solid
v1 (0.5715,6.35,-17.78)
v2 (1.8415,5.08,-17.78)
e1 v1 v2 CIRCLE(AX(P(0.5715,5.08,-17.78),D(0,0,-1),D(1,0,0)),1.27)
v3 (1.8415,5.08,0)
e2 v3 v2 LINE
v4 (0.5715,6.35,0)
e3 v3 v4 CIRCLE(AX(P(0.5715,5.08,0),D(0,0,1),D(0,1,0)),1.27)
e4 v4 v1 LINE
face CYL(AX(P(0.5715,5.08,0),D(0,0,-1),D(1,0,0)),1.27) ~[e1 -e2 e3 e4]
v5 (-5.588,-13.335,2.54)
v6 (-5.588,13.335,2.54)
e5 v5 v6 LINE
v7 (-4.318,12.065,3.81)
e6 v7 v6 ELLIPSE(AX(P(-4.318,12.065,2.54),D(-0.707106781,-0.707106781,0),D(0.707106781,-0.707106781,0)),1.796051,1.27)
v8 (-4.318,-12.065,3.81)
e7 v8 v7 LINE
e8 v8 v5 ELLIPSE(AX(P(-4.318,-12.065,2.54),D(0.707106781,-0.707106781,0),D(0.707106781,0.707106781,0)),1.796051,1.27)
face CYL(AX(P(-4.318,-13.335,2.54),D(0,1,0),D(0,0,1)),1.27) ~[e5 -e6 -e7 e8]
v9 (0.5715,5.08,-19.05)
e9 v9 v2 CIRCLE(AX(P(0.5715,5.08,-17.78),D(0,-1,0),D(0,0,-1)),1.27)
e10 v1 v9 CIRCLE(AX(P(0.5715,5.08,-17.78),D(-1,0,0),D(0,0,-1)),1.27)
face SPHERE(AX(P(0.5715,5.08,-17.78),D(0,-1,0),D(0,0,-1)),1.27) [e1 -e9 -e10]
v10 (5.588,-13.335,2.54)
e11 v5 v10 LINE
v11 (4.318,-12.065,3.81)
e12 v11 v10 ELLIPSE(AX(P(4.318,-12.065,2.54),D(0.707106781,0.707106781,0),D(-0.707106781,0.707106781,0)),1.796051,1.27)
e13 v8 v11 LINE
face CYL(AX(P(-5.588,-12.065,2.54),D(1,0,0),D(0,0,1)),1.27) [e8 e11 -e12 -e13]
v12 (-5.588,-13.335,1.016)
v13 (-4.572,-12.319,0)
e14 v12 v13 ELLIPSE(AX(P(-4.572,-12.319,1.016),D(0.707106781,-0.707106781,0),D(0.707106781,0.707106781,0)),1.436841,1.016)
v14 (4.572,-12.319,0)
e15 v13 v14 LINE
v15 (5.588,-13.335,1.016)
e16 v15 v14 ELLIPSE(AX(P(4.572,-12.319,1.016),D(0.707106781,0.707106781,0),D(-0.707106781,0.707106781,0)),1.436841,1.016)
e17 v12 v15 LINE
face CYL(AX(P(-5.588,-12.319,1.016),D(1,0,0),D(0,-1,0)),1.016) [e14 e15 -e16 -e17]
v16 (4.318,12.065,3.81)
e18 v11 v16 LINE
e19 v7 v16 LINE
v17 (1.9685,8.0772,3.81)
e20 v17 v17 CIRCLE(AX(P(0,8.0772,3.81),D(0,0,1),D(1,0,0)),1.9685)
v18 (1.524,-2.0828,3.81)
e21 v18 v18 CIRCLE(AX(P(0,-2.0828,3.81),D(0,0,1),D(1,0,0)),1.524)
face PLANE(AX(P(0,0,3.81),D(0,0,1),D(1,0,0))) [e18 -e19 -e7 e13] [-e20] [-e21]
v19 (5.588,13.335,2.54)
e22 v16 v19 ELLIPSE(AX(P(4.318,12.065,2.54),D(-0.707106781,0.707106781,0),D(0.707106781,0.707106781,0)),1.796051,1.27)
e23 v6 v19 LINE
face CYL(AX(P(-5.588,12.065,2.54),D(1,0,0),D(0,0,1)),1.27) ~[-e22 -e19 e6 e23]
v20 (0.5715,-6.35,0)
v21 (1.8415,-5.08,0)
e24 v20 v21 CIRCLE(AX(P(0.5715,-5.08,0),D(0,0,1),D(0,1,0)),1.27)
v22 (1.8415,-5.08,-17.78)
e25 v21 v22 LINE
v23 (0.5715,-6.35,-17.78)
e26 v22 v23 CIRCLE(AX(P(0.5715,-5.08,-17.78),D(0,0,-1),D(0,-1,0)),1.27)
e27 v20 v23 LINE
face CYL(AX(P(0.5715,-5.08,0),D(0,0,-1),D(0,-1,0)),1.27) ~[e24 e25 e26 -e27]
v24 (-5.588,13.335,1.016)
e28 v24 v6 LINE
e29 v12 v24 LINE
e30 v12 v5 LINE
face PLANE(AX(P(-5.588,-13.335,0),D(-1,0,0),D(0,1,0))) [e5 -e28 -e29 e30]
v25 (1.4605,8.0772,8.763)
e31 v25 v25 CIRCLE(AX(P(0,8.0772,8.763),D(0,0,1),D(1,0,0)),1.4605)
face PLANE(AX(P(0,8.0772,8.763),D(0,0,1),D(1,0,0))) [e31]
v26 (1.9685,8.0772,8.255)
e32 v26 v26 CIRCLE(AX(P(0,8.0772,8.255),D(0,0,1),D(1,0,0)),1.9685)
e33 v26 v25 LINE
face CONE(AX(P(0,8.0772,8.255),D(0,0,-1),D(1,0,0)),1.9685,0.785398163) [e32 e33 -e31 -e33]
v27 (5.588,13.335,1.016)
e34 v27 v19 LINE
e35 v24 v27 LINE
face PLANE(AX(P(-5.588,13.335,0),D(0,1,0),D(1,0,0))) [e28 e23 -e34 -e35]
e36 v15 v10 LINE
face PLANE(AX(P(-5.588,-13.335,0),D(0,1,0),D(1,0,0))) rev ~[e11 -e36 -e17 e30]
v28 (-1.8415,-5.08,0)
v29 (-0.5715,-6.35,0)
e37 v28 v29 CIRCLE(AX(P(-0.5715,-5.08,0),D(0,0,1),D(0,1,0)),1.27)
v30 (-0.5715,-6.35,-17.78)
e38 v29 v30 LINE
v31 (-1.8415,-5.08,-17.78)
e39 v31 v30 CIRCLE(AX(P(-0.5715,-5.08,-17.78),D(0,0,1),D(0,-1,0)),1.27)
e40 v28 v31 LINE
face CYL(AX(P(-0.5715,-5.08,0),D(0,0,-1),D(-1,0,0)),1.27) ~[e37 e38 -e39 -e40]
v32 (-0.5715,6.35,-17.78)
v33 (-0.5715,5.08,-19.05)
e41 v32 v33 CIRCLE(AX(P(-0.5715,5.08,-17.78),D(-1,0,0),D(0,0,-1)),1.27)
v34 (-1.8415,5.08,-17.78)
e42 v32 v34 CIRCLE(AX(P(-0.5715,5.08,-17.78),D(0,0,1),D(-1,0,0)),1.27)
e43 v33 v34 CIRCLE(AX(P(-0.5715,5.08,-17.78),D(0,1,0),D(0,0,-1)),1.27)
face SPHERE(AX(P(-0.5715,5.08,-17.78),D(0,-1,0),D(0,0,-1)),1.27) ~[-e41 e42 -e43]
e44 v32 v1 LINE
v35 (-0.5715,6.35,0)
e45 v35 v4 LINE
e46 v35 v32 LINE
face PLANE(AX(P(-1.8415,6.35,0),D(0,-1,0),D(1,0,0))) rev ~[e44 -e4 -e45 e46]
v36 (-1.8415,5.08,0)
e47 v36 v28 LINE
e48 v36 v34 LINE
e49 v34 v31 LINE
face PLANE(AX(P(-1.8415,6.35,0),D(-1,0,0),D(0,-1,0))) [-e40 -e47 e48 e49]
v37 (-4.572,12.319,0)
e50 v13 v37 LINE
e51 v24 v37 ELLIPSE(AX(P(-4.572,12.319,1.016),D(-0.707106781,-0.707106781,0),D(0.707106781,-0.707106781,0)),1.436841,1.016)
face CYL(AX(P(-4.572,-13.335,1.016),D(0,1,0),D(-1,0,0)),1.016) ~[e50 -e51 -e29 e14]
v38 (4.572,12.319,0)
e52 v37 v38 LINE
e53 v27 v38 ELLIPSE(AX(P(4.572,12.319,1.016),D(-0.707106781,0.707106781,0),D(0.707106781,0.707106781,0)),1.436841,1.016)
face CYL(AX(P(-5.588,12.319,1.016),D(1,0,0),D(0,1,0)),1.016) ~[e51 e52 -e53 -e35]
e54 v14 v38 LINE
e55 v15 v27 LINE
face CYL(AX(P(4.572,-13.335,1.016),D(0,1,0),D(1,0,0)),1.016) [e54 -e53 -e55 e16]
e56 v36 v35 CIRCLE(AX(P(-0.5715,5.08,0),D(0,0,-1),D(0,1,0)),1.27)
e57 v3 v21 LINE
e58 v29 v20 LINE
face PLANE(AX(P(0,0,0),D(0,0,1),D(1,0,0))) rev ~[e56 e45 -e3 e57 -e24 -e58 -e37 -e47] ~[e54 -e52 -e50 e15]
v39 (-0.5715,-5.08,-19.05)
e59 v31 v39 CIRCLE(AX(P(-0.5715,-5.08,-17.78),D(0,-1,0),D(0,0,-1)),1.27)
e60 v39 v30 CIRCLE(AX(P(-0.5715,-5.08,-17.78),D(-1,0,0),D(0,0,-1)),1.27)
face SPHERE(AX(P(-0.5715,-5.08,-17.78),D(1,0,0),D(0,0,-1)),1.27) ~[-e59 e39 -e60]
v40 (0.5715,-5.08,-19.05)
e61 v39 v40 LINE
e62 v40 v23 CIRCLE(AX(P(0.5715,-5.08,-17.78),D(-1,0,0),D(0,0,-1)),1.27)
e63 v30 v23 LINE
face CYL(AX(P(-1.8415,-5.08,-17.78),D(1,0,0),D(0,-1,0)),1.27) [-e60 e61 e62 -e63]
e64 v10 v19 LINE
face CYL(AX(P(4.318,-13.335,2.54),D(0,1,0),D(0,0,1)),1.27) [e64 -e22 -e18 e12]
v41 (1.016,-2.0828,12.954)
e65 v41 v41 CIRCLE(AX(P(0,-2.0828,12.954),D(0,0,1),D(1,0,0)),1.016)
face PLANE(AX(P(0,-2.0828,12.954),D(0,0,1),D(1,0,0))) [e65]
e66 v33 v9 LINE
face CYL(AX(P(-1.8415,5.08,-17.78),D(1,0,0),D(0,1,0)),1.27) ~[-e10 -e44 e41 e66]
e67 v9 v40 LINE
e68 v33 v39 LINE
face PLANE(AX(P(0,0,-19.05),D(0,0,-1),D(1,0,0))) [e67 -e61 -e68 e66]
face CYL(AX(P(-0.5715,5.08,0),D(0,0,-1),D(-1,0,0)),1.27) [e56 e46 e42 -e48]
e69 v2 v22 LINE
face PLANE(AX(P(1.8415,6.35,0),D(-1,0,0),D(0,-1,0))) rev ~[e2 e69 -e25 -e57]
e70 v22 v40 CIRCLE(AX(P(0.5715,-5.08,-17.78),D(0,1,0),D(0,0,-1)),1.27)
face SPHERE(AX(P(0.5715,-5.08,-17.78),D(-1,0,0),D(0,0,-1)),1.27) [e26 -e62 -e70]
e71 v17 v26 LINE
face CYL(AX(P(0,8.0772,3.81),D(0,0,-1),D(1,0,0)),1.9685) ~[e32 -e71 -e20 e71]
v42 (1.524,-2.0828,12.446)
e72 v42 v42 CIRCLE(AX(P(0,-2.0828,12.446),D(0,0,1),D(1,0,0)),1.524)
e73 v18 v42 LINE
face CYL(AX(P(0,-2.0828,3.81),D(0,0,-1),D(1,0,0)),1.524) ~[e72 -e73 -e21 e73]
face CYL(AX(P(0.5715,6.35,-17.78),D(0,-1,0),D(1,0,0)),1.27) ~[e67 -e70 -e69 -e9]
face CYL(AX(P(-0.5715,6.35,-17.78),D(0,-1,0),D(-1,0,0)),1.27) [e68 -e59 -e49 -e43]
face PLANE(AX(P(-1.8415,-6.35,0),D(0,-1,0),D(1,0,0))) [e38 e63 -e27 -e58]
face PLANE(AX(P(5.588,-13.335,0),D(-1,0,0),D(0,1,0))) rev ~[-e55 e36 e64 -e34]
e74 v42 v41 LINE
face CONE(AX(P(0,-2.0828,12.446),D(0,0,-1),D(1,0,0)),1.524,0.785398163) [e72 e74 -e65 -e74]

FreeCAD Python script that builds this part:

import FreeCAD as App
import Part
import Sketcher
from FreeCAD import Vector
Q = App.Units.Quantity


def edges_at(feature, points):
    """Names of the edges that pass closest to the given points."""
    edges = feature.Shape.Edges
    near = lambda p: min(range(len(edges)), key=lambda i: edges[i].distToShape(Part.Vertex(*p))[0])
    return sorted({f"Edge{near(p) + 1}" for p in points})

doc = App.newDocument("Part")
body = doc.addObject("PartDesign::Body", "Body")

sketch1 = doc.addObject("Sketcher::SketchObject", "Sketch")
body.addObject(sketch1)
sketch1.AttachmentSupport = (doc.XY_Plane, [""])
sketch1.MapMode = "FlatFace"
sketch1.addGeometry(Part.LineSegment(Vector(-6, 13, 0), Vector(-6, -13, 0)), False)
sketch1.addGeometry(Part.LineSegment(Vector(-6, -13, 0), Vector(6, -13, 0)), False)
sketch1.addGeometry(Part.LineSegment(Vector(6, -13, 0), Vector(6, 13, 0)), False)
sketch1.addGeometry(Part.LineSegment(Vector(6, 13, 0), Vector(-6, 13, 0)), False)
sketch1.addConstraint(Sketcher.Constraint("Coincident", 0, 2, 1, 1))
sketch1.addConstraint(Sketcher.Constraint("Coincident", 1, 2, 2, 1))
sketch1.addConstraint(Sketcher.Constraint("Coincident", 2, 2, 3, 1))
sketch1.addConstraint(Sketcher.Constraint("Coincident", 3, 2, 0, 1))
sketch1.addConstraint(Sketcher.Constraint("Vertical", 0))
sketch1.addConstraint(Sketcher.Constraint("Horizontal", 1))
sketch1.addConstraint(Sketcher.Constraint("Vertical", 2))
sketch1.addConstraint(Sketcher.Constraint("Horizontal", 3))
sketch1.addConstraint(Sketcher.Constraint("Symmetric", 0, 2, 2, 2, -1, 1))
sketch1.addConstraint(Sketcher.Constraint("DistanceX", 1, 1, 1, 2, Q("0.44 in")))
sketch1.addConstraint(Sketcher.Constraint("DistanceY", 0, 2, 0, 1, Q("1.05 in")))
pad1 = doc.addObject("PartDesign::Pad", "Pad")
body.addObject(pad1)
pad1.Profile = sketch1
pad1.Length = Q("0.15 in")

sketch2 = doc.addObject("Sketcher::SketchObject", "Sketch001")
body.addObject(sketch2)
sketch2.AttachmentSupport = (doc.XY_Plane, [""])
sketch2.MapMode = "FlatFace"
sketch2.AttachmentOffset = App.Placement(Vector(0, 0, 0.15 * 25.4), App.Rotation())
sketch2.addGeometry(Part.Circle(Vector(0, 8.1, 0), Vector(0, 0, 1), 2), False)
sketch2.addConstraint(Sketcher.Constraint("PointOnObject", 0, 3, -2))
sketch2.addConstraint(Sketcher.Constraint("Diameter", 0, Q("0.155 in")))
sketch2.addConstraint(Sketcher.Constraint("DistanceY", -1, 1, 0, 3, Q("0.318 in")))
pad2 = doc.addObject("PartDesign::Pad", "Pad001")
body.addObject(pad2)
pad2.Profile = sketch2
pad2.Length = Q("0.195 in")

sketch3 = doc.addObject("Sketcher::SketchObject", "Sketch002")
body.addObject(sketch3)
sketch3.AttachmentSupport = (doc.XY_Plane, [""])
sketch3.MapMode = "FlatFace"
sketch3.AttachmentOffset = App.Placement(Vector(0, 0, 0.15 * 25.4), App.Rotation())
sketch3.addGeometry(Part.Circle(Vector(0, -2.1, 0), Vector(0, 0, 1), 1.5), False)
sketch3.addConstraint(Sketcher.Constraint("PointOnObject", 0, 3, -2))
sketch3.addConstraint(Sketcher.Constraint("Diameter", 0, Q("0.12 in")))
sketch3.addConstraint(Sketcher.Constraint("DistanceY", 0, 3, -1, 1, Q("0.082 in")))
pad3 = doc.addObject("PartDesign::Pad", "Pad002")
body.addObject(pad3)
pad3.Profile = sketch3
pad3.Length = Q("0.36 in")
doc.recompute()

chamfer = doc.addObject("PartDesign::Chamfer", "Chamfer")
body.addObject(chamfer)
chamfer.Base = (pad3, edges_at(pad3, [(-1.968, 8.077, 8.763), (-1.524, -2.083, 12.954)]))
chamfer.Size = Q("0.02 in")
doc.recompute()

fillet = doc.addObject("PartDesign::Fillet", "Fillet")
body.addObject(fillet)
fillet.Base = (chamfer, edges_at(chamfer, [
    (0, 13.335, 3.81),
    (5.588, 0, 3.81),
    (0, -13.335, 3.81),
    (-5.588, 0, 3.81),
]))
fillet.Radius = Q("0.05 in")
doc.recompute()

fillet2 = doc.addObject("PartDesign::Fillet", "Fillet001")
body.addObject(fillet2)
fillet2.Base = (fillet, edges_at(fillet, [
    (0, 13.335, 0),
    (5.588, 0, 0),
    (0, -13.335, 0),
    (-5.588, 0, 0),
]))
fillet2.Radius = Q("0.04 in")

sketch4 = doc.addObject("Sketcher::SketchObject", "Sketch003")
body.addObject(sketch4)
sketch4.AttachmentSupport = (doc.XY_Plane, [""])
sketch4.MapMode = "FlatFace"
sketch4.addGeometry(Part.LineSegment(Vector(-1.8, -6.3, 0), Vector(-1.8, 6.3, 0)), False)
sketch4.addGeometry(Part.LineSegment(Vector(-1.8, 6.3, 0), Vector(1.8, 6.3, 0)), False)
sketch4.addGeometry(Part.LineSegment(Vector(1.8, 6.3, 0), Vector(1.8, -6.3, 0)), False)
sketch4.addGeometry(Part.LineSegment(Vector(1.8, -6.3, 0), Vector(-1.8, -6.3, 0)), False)
sketch4.addConstraint(Sketcher.Constraint("Coincident", 0, 2, 1, 1))
sketch4.addConstraint(Sketcher.Constraint("Coincident", 1, 2, 2, 1))
sketch4.addConstraint(Sketcher.Constraint("Coincident", 2, 2, 3, 1))
sketch4.addConstraint(Sketcher.Constraint("Coincident", 3, 2, 0, 1))
sketch4.addConstraint(Sketcher.Constraint("Vertical", 0))
sketch4.addConstraint(Sketcher.Constraint("Horizontal", 1))
sketch4.addConstraint(Sketcher.Constraint("Vertical", 2))
sketch4.addConstraint(Sketcher.Constraint("Horizontal", 3))
sketch4.addConstraint(Sketcher.Constraint("Symmetric", 0, 2, 2, 2, -1, 1))
sketch4.addConstraint(Sketcher.Constraint("DistanceY", 0, 1, 0, 2, Q("0.5 in")))
sketch4.addConstraint(Sketcher.Constraint("DistanceX", 1, 1, 1, 2, Q("0.145 in")))
pad4 = doc.addObject("PartDesign::Pad", "Pad003")
body.addObject(pad4)
pad4.Profile = sketch4
pad4.Length = Q("0.75 in")
pad4.Reversed = True
doc.recompute()

fillet3 = doc.addObject("PartDesign::Fillet", "Fillet002")
body.addObject(fillet3)
fillet3.Base = (pad4, edges_at(pad4, [
    (0, -6.35, -19.05),
    (-1.841, 0, -19.05),
    (1.841, 0, -19.05),
    (0, 6.35, -19.05),
    (-1.841, -6.35, -9.525),
    (1.841, -6.35, -9.525),
    (1.841, 6.35, -9.525),
    (-1.841, 6.35, -9.525),
]))
fillet3.Radius = Q("0.05 in")

doc.recompute()
